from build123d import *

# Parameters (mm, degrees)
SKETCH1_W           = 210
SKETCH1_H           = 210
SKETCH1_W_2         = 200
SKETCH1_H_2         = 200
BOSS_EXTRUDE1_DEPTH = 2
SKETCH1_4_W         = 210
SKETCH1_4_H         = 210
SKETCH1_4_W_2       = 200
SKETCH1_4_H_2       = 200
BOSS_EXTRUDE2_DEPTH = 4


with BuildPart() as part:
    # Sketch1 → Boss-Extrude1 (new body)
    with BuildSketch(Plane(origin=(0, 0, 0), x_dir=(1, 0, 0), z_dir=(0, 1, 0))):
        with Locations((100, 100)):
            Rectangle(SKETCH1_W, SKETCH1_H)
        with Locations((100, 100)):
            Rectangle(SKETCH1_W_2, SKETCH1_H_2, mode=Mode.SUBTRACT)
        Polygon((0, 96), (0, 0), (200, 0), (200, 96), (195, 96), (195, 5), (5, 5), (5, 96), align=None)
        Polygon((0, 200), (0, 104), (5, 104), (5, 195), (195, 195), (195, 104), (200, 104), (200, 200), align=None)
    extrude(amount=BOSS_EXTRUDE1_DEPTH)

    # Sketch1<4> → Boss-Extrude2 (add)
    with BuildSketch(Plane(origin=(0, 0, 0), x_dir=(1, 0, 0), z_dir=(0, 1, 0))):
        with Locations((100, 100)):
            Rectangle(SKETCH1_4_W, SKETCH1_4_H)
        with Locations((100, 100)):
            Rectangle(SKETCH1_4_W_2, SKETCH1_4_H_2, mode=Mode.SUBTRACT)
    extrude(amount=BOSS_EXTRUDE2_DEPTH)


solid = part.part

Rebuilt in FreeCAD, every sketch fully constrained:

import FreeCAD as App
import Part
import Sketcher
from FreeCAD import Vector
Q = App.Units.Quantity


def add_polygon(sketch, points):
    """Adds a closed chain of lines whose ends are joined by coincident constraints."""
    first, n = sketch.GeometryCount, len(points)
    for a, b in zip(points, points[1:] + points[:1]):
        sketch.addGeometry(Part.LineSegment(App.Vector(*a, 0), App.Vector(*b, 0)), False)
    for i in range(n):
        sketch.addConstraint(Sketcher.Constraint("Coincident", first + i, 2, first + (i + 1) % n, 1))

doc = App.newDocument("Part")
params = doc.addObject("Spreadsheet::Sheet", "Params")
for row, (alias, value) in enumerate([
    ("sketch1_width", "210 mm"),
    ("sketch1_width2", "5 mm"),
    ("sketch1_width3", "190 mm"),
    ("sketch1_height", "8 mm"),
    ("sketch1_height2", "91 mm"),
    ("pad1_length", "2 mm"),
    ("sketch2_width", "210 mm"),
    ("sketch2_width2", "200 mm"),
    ("pad2_length", "4 mm"),
], start=1):
    params.set(f"A{row}", alias)
    params.set(f"B{row}", "=" + value)
    params.setAlias(f"B{row}", alias)

body = doc.addObject("PartDesign::Body", "Body")

# Sketch on XZ plane
sketch1 = body.newObject("Sketcher::SketchObject", "Sketch")
sketch1.AttachmentSupport = (doc.getObject("XZ_Plane"), [""])
sketch1.MapMode = "FlatFace"
add_polygon(sketch1, [(-5, -205), (-5, 5), (205, 5), (205, -205)])  # lines 0-3
add_polygon(sketch1, [(200, -104), (200, -96), (195, -96), (195, -5), (5, -5), (5, -96), (0, -96), (0, -104), (5, -104), (5, -195), (195, -195), (195, -104)])  # lines 4-15
sketch1.addConstraint(Sketcher.Constraint("Vertical", 0))
sketch1.addConstraint(Sketcher.Constraint("Horizontal", 1))
sketch1.addConstraint(Sketcher.Constraint("Vertical", 2))
sketch1.addConstraint(Sketcher.Constraint("Horizontal", 3))
sketch1.addConstraint(Sketcher.Constraint("Vertical", 4))
sketch1.addConstraint(Sketcher.Constraint("Horizontal", 5))
sketch1.addConstraint(Sketcher.Constraint("Vertical", 6))
sketch1.addConstraint(Sketcher.Constraint("Horizontal", 7))
sketch1.addConstraint(Sketcher.Constraint("Vertical", 8))
sketch1.addConstraint(Sketcher.Constraint("Horizontal", 9))
sketch1.addConstraint(Sketcher.Constraint("Vertical", 10))
sketch1.addConstraint(Sketcher.Constraint("Horizontal", 11))
sketch1.addConstraint(Sketcher.Constraint("Vertical", 12))
sketch1.addConstraint(Sketcher.Constraint("Horizontal", 13))
sketch1.addConstraint(Sketcher.Constraint("Vertical", 14))
sketch1.addConstraint(Sketcher.Constraint("Horizontal", 15))
sketch1.addConstraint(Sketcher.Constraint("Symmetric", 0, 2, 7, 2, -1, 1))
sketch1.addConstraint(Sketcher.Constraint("PointOnObject", 9, 2, -2))
sketch1.addConstraint(Sketcher.Constraint("Horizontal", 5, 2, 8, 2))
sketch1.addConstraint(Sketcher.Constraint("Horizontal", 11, 2, 14, 2))
sketch1.addConstraint(Sketcher.Constraint("Vertical", 8, 2, 11, 2))
sketch1.addConstraint(Sketcher.Constraint("Vertical", 6, 2, 13, 2))
sketch1.addConstraint(Sketcher.Constraint("Equal", 5, 9))
sketch1.addConstraint(Sketcher.Constraint("Equal", 3, 0))
sketch1.addConstraint(Sketcher.Constraint("Equal", 8, 12))
sketch1.addConstraint(Sketcher.Constraint("DistanceX", 1, 1, 1, 2, Q("210 mm")))
sketch1.addConstraint(Sketcher.Constraint("DistanceX", 5, 2, 5, 1, Q("5 mm")))
sketch1.addConstraint(Sketcher.Constraint("DistanceX", 7, 2, 7, 1, Q("190 mm")))
sketch1.addConstraint(Sketcher.Constraint("DistanceY", 4, 1, 4, 2, Q("8 mm")))
sketch1.addConstraint(Sketcher.Constraint("DistanceY", 6, 1, 6, 2, Q("91 mm")))
sketch1.addConstraint(Sketcher.Constraint("DistanceY", -1, 1, 0, 2, Q("5 mm")))
sketch1.setExpression("Constraints[41]", "Params.sketch1_width")
sketch1.setExpression("Constraints[42]", "Params.sketch1_width2")
sketch1.setExpression("Constraints[43]", "Params.sketch1_width3")
sketch1.setExpression("Constraints[44]", "Params.sketch1_height")
sketch1.setExpression("Constraints[45]", "Params.sketch1_height2")
pad1 = body.newObject("PartDesign::Pad", "Pad")
pad1.Profile = sketch1
pad1.setExpression("Length", "Params.pad1_length")
pad1.Reversed = True

# Sketch on XZ plane
sketch2 = body.newObject("Sketcher::SketchObject", "Sketch001")
sketch2.AttachmentSupport = (doc.getObject("XZ_Plane"), [""])
sketch2.MapMode = "FlatFace"
add_polygon(sketch2, [(-5, -205), (-5, 5), (205, 5), (205, -205)])  # lines 0-3
add_polygon(sketch2, [(200, 0), (0, 0), (0, -200), (200, -200)])  # lines 4-7
sketch2.addConstraint(Sketcher.Constraint("Vertical", 0))
sketch2.addConstraint(Sketcher.Constraint("Horizontal", 1))
sketch2.addConstraint(Sketcher.Constraint("Vertical", 2))
sketch2.addConstraint(Sketcher.Constraint("Horizontal", 3))
sketch2.addConstraint(Sketcher.Constraint("Horizontal", 4))
sketch2.addConstraint(Sketcher.Constraint("Vertical", 5))
sketch2.addConstraint(Sketcher.Constraint("Horizontal", 6))
sketch2.addConstraint(Sketcher.Constraint("Vertical", 7))
sketch2.addConstraint(Sketcher.Constraint("Coincident", 4, 2, -1, 1))
sketch2.addConstraint(Sketcher.Constraint("Equal", 3, 0))
sketch2.addConstraint(Sketcher.Constraint("Equal", 6, 5))
sketch2.addConstraint(Sketcher.Constraint("DistanceX", 1, 1, 1, 2, Q("210 mm")))
sketch2.addConstraint(Sketcher.Constraint("DistanceX", 4, 2, 4, 1, Q("200 mm")))
sketch2.addConstraint(Sketcher.Constraint("DistanceX", 0, 2, -1, 1, Q("5 mm")))
sketch2.addConstraint(Sketcher.Constraint("DistanceY", -1, 1, 0, 2, Q("5 mm")))
sketch2.setExpression("Constraints[19]", "Params.sketch2_width")
sketch2.setExpression("Constraints[20]", "Params.sketch2_width2")
pad2 = body.newObject("PartDesign::Pad", "Pad001")
pad2.Profile = sketch2
pad2.setExpression("Length", "Params.pad2_length")
pad2.Reversed = True

doc.recompute()
